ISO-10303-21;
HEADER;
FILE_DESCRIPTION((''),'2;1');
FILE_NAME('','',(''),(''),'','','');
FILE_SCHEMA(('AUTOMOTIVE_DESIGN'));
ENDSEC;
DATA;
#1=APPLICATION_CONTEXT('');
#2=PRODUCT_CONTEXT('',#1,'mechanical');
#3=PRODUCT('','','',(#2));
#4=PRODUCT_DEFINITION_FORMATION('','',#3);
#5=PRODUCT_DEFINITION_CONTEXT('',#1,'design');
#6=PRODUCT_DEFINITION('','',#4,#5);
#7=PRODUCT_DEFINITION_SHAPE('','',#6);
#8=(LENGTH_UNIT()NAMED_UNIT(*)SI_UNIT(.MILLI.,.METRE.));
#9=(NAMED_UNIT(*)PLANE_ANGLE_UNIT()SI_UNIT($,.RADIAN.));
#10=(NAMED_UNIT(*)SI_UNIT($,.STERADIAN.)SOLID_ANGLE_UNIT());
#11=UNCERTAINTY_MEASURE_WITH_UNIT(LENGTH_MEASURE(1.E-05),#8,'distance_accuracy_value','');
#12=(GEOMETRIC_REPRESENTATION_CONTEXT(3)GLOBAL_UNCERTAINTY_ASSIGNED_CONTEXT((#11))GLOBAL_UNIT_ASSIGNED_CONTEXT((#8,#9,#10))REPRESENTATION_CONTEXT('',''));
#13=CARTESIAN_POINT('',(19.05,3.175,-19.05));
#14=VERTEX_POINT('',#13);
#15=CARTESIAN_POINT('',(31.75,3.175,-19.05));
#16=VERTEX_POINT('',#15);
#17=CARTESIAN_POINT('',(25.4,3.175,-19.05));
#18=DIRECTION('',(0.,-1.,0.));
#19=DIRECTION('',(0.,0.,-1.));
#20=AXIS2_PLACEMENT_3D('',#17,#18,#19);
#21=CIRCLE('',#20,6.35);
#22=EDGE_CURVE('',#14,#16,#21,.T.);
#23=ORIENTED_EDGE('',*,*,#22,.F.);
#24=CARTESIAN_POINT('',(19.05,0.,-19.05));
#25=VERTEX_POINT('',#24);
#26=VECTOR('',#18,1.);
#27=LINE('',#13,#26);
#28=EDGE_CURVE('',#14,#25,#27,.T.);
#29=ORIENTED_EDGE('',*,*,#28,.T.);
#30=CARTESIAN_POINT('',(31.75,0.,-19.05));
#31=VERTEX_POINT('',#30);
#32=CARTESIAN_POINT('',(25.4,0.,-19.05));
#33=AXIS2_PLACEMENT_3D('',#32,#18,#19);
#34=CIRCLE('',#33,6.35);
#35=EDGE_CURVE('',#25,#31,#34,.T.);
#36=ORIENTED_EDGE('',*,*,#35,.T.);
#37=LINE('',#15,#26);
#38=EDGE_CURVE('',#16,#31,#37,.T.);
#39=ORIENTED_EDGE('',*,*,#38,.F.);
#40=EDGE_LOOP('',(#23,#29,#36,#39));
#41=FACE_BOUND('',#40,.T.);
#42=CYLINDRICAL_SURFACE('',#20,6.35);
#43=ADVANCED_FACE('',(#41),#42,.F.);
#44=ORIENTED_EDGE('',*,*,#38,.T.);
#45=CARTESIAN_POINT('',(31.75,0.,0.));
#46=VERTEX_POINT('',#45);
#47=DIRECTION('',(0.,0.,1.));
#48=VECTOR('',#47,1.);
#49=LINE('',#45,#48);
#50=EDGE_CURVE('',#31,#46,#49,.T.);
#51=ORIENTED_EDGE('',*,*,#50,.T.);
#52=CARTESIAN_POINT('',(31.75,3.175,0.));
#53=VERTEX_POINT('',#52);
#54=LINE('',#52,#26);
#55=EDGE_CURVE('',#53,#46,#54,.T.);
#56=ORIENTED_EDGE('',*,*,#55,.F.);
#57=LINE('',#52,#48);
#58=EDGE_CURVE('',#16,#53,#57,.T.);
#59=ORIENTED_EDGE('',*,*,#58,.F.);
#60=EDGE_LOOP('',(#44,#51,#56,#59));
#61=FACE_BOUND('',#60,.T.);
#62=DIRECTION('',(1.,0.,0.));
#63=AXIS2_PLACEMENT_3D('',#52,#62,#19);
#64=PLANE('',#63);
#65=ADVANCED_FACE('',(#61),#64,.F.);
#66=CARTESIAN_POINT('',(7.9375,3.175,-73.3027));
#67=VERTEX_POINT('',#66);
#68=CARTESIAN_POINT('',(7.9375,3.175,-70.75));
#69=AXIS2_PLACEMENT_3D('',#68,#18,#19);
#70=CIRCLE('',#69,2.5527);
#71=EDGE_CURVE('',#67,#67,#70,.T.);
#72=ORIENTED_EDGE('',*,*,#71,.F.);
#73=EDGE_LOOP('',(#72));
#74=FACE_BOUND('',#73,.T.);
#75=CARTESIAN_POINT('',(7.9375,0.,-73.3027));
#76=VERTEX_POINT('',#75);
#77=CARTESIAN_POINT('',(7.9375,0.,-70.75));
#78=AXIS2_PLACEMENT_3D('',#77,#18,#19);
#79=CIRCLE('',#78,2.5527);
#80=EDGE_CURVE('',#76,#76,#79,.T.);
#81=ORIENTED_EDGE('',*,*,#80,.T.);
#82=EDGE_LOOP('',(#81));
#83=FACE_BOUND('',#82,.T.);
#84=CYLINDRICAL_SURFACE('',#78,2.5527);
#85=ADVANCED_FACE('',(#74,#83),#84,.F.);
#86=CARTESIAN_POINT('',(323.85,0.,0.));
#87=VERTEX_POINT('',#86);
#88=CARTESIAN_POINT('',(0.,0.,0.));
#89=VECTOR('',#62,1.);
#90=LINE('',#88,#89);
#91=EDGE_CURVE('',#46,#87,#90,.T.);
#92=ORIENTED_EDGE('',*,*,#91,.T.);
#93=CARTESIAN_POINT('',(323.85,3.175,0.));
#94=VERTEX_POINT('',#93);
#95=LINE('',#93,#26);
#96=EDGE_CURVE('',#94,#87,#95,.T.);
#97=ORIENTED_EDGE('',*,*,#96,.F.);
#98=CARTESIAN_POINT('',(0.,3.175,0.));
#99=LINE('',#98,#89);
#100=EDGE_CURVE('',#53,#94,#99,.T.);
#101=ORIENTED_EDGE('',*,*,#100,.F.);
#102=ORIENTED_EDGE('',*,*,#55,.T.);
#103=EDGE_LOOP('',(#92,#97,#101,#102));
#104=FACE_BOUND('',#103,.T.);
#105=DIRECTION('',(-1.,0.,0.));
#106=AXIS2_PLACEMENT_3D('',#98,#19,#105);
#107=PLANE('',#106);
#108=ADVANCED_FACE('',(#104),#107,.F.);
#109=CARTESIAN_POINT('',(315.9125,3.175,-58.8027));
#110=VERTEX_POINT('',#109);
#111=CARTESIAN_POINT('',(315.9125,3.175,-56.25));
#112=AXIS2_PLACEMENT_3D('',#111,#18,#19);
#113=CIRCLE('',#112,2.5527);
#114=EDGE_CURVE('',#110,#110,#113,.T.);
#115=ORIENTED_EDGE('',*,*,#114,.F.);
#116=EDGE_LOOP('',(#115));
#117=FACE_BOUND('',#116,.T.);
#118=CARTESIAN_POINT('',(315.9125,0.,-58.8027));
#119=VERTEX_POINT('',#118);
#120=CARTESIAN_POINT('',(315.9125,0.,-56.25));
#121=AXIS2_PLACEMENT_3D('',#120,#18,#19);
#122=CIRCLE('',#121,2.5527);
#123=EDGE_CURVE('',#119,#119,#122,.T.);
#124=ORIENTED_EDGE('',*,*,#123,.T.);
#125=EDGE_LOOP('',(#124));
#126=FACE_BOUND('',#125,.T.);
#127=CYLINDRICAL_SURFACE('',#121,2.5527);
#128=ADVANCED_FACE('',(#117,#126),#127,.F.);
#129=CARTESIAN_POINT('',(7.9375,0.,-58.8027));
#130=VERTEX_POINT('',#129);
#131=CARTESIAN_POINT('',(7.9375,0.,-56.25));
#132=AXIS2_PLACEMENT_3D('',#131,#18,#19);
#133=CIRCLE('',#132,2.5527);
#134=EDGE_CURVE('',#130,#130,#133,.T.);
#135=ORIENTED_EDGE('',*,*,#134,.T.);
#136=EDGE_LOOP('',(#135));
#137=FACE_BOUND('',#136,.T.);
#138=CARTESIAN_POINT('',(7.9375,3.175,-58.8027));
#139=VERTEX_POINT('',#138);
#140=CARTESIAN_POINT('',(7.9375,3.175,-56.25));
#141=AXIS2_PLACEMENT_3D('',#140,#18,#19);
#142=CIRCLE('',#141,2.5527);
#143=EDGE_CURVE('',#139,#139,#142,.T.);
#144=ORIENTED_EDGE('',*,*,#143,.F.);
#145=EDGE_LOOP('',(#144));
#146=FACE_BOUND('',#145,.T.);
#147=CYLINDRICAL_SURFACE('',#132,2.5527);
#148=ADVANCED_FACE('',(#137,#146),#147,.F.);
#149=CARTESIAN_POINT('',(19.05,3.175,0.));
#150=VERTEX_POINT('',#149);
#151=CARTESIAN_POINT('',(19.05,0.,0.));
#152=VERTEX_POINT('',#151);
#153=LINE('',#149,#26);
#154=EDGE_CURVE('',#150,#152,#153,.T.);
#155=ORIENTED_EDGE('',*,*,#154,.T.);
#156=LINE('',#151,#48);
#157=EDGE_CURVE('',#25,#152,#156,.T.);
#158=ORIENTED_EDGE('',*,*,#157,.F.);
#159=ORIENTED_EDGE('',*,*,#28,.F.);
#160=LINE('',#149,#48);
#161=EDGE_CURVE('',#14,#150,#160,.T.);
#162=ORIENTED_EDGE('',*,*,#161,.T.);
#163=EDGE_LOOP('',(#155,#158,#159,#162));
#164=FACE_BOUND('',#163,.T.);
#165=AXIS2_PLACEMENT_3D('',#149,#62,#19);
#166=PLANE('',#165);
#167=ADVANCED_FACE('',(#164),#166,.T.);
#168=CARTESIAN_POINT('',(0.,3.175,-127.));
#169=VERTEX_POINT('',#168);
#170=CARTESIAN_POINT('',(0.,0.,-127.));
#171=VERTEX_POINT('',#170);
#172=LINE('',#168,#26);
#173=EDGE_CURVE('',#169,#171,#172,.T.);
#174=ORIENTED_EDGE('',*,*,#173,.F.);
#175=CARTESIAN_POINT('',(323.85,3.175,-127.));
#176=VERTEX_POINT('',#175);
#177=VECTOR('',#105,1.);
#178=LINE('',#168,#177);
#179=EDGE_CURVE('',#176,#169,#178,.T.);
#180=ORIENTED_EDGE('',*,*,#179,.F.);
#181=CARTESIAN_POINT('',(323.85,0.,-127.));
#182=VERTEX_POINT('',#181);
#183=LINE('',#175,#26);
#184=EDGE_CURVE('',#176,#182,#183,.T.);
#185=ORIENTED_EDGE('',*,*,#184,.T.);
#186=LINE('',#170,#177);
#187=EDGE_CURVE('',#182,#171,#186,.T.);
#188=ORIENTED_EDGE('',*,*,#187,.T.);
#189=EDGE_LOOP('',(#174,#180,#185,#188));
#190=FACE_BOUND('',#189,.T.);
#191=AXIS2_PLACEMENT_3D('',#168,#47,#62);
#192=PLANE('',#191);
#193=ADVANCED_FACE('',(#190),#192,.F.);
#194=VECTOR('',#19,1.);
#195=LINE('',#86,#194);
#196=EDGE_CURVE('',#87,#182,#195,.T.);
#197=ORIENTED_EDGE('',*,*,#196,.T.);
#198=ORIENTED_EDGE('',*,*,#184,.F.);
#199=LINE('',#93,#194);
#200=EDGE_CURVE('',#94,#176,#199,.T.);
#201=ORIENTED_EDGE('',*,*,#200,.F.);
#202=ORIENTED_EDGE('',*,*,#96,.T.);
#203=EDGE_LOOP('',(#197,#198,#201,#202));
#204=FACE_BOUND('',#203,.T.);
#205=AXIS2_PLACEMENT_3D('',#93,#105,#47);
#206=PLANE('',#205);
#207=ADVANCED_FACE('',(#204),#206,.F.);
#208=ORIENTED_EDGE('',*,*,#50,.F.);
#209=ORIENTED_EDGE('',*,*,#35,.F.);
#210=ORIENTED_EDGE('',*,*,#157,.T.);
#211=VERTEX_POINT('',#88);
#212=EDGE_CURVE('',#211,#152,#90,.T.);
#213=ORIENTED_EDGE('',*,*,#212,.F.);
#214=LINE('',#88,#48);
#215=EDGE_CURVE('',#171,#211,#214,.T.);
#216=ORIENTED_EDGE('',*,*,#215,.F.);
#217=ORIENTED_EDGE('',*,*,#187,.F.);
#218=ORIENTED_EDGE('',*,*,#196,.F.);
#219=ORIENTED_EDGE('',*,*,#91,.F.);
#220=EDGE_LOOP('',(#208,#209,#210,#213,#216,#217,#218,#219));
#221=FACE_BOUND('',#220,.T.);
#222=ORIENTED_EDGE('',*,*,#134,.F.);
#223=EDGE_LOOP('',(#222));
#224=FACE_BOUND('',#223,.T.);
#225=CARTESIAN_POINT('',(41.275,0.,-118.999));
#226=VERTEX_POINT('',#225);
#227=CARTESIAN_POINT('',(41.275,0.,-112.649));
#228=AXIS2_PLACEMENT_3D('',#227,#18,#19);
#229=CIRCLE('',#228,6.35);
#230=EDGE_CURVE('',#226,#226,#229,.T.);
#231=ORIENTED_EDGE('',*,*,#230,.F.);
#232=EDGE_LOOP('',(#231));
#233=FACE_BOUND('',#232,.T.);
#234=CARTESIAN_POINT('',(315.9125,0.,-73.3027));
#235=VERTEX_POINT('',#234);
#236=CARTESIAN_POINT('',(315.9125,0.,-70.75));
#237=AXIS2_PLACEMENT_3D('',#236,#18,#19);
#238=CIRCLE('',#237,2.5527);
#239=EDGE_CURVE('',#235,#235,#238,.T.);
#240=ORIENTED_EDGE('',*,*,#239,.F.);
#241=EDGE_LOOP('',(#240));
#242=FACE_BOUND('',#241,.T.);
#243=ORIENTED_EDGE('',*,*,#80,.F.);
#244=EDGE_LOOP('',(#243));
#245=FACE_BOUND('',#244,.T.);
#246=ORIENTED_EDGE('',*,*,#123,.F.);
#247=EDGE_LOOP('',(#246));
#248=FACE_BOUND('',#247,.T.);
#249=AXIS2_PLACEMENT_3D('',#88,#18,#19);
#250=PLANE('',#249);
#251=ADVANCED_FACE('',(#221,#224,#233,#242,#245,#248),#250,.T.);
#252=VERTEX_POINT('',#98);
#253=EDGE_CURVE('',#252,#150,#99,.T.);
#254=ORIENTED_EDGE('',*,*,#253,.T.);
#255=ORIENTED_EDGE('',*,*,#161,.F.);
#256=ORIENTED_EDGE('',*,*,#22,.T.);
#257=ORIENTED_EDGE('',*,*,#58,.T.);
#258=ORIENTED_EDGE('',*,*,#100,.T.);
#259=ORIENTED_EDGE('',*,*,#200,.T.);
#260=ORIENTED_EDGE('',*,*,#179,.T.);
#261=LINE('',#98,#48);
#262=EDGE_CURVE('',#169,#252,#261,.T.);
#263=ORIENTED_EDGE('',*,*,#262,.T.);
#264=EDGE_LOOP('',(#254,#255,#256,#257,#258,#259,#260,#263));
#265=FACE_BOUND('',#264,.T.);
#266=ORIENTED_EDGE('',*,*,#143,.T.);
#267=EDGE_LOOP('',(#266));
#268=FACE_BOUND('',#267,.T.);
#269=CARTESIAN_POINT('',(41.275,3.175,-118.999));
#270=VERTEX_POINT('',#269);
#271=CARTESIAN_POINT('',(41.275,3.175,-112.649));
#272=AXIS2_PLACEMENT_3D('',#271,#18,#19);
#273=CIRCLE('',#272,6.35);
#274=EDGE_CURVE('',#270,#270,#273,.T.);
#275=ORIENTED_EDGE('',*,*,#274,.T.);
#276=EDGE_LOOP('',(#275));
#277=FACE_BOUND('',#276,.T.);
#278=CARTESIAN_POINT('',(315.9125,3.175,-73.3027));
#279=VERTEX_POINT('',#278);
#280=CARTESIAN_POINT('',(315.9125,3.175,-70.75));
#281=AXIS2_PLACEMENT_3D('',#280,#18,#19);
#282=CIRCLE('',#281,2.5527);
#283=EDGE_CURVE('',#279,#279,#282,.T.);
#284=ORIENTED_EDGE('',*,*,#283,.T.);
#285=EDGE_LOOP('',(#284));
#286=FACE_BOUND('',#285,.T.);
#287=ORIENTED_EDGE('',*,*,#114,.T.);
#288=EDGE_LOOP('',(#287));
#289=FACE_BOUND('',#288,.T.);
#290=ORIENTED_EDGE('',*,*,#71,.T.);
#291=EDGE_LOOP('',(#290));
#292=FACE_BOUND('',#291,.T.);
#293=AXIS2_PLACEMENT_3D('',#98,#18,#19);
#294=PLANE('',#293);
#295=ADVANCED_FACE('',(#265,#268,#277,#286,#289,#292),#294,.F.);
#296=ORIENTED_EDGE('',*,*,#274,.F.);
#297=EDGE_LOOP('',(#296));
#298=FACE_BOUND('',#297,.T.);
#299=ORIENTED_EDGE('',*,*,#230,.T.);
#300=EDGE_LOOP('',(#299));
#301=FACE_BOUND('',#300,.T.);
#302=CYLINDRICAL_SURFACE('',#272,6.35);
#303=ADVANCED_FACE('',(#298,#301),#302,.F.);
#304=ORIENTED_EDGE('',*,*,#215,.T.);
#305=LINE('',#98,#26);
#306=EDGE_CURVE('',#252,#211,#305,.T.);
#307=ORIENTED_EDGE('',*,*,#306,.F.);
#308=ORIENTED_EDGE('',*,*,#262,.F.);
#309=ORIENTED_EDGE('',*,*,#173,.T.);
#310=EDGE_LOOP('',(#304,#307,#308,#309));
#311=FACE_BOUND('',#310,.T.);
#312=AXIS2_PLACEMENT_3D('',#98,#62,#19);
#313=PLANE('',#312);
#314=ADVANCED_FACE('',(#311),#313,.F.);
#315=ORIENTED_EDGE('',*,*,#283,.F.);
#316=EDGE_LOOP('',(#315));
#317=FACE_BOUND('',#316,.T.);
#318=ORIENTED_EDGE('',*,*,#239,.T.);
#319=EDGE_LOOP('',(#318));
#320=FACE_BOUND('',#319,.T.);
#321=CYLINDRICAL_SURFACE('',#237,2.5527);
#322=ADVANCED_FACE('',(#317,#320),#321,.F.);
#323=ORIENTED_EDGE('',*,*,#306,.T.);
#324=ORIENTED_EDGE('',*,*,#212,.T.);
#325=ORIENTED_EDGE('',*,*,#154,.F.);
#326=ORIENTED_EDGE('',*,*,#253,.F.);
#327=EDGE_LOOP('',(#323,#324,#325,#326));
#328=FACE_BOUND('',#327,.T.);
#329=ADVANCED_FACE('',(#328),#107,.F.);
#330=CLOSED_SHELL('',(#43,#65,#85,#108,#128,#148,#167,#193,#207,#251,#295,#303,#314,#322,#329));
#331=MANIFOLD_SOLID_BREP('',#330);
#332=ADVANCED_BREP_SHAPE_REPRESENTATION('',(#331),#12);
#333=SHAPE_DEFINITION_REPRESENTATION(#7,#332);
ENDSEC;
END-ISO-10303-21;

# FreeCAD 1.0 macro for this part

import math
import FreeCAD as App
import Part
import Sketcher
Q = App.Units.Quantity


def add_polygon(sketch, points):
    """Adds a closed chain of lines whose ends are joined by coincident constraints."""
    first, n = sketch.GeometryCount, len(points)
    for a, b in zip(points, points[1:] + points[:1]):
        sketch.addGeometry(Part.LineSegment(App.Vector(*a, 0), App.Vector(*b, 0)), False)
    for i in range(n):
        sketch.addConstraint(Sketcher.Constraint("Coincident", first + i, 2, first + (i + 1) % n, 1))

doc = App.newDocument("Part")
params = doc.addObject("Spreadsheet::Sheet", "Params")
for row, (alias, value) in enumerate([
    ("sketch1_height", "5 in"),
    ("sketch1_width", "12.75 in"),
    ("pad1_length", "0.125 in"),
    ("sketch2_diameter", "0.5 in"),
    ("sketch2_height", "0.75 in"),
    ("sketch3_diameter", "0.201 in"),
    ("hole_diameter", "0.201 in"),
    ("hole_depth", "0.5 in"),
], start=1):
    params.set(f"A{row}", alias)
    params.set(f"B{row}", "=" + value)
    params.setAlias(f"B{row}", alias)

body = doc.addObject("PartDesign::Body", "Body")

# Sketch on XZ plane
sketch1 = body.newObject("Sketcher::SketchObject", "Sketch")
sketch1.AttachmentSupport = (doc.getObject("XZ_Plane"), [""])
sketch1.MapMode = "FlatFace"
add_polygon(sketch1, [(0, -127), (0, 0), (323.85, 0), (323.85, -127)])  # lines 0-3
sketch1.addConstraint([
    Sketcher.Constraint("Vertical", 0),
    Sketcher.Constraint("Horizontal", 1),
    Sketcher.Constraint("Vertical", 2),
    Sketcher.Constraint("Horizontal", 3),
    Sketcher.Constraint("Coincident", 0, 2, -1, 1),
    Sketcher.Constraint("DistanceY", 0, 1, 0, 2, Q("5 in")),
    Sketcher.Constraint("DistanceX", 1, 1, 1, 2, Q("12.75 in")),
])
sketch1.setExpression("Constraints[9]", "Params.sketch1_height")
sketch1.setExpression("Constraints[10]", "Params.sketch1_width")
pad1 = body.newObject("PartDesign::Pad", "Pad")
pad1.Profile = sketch1
pad1.setExpression("Length", "Params.pad1_length")
pad1.Reversed = True

# Sketch on XZ plane
sketch2 = body.newObject("Sketcher::SketchObject", "Sketch001")
sketch2.AttachmentSupport = (doc.getObject("XZ_Plane"), [""])
sketch2.MapMode = "FlatFace"
sketch2.addGeometry([
    Part.Circle(App.Vector(41.275, -112.649, 0), App.Vector(0, 0, 1), 6.35),  # 0
    Part.ArcOfCircle(Part.Circle(App.Vector(25.4, -19.05, 0), App.Vector(0, 0, 1), 6.35), math.radians(180), math.radians(360)),  # 1
    Part.LineSegment(App.Vector(31.75, -19.05, 0), App.Vector(31.75, 0, 0)),  # 2
    Part.LineSegment(App.Vector(31.75, 0, 0), App.Vector(19.05, 0, 0)),  # 3
    Part.LineSegment(App.Vector(19.05, 0, 0), App.Vector(19.05, -19.05, 0)),  # 4
], False)
sketch2.addConstraint([
    Sketcher.Constraint("Tangent", 1, 2, 2, 1),
    Sketcher.Constraint("Coincident", 2, 2, 3, 1),
    Sketcher.Constraint("Coincident", 3, 2, 4, 1),
    Sketcher.Constraint("Tangent", 4, 2, 1, 1),
    Sketcher.Constraint("Vertical", 2),
    Sketcher.Constraint("Horizontal", 3),
    Sketcher.Constraint("Vertical", 4),
    Sketcher.Constraint("Equal", 0, 1),
    Sketcher.Constraint("PointOnObject", 2, 2, -1),
    Sketcher.Constraint("Diameter", 0, Q("0.5 in")),
    Sketcher.Constraint("DistanceX", -1, 1, 1, 3, Q("1 in")),
    Sketcher.Constraint("DistanceY", 2, 1, 2, 2, Q("0.75 in")),
    Sketcher.Constraint("DistanceX", -1, 1, 0, 3, Q("1.625 in")),
    Sketcher.Constraint("DistanceY", 0, 3, -1, 1, Q("4.435 in")),
])
sketch2.setExpression("Constraints[9]", "Params.sketch2_diameter")
sketch2.setExpression("Constraints[11]", "Params.sketch2_height")
pocket1 = body.newObject("PartDesign::Pocket", "Pocket")
pocket1.Profile = sketch2
pocket1.Type = "ThroughAll"

# Sketch on XZ plane
sketch3 = body.newObject("Sketcher::SketchObject", "Sketch002")
sketch3.AttachmentSupport = (doc.getObject("XZ_Plane"), [""])
sketch3.MapMode = "FlatFace"
sketch3.addGeometry([
    Part.Circle(App.Vector(315.9125, -70.75, 0), App.Vector(0, 0, 1), 2.5527),
    Part.Circle(App.Vector(315.9125, -56.25, 0), App.Vector(0, 0, 1), 2.5527),
    Part.Circle(App.Vector(7.9375, -70.75, 0), App.Vector(0, 0, 1), 2.5527),
    Part.Circle(App.Vector(7.9375, -56.25, 0), App.Vector(0, 0, 1), 2.5527),
], False)
sketch3.addConstraint([
    Sketcher.Constraint("Equal", 0, 1),
    Sketcher.Constraint("Equal", 1, 2),
    Sketcher.Constraint("Equal", 2, 3),
    Sketcher.Constraint("Horizontal", 0, 3, 2, 3),
    Sketcher.Constraint("Horizontal", 1, 3, 3, 3),
    Sketcher.Constraint("Vertical", 0, 3, 1, 3),
    Sketcher.Constraint("Vertical", 2, 3, 3, 3),
    Sketcher.Constraint("Diameter", 0, Q("0.201 in")),
    Sketcher.Constraint("DistanceX", -1, 1, 0, 3, Q("12.4375 in")),
    Sketcher.Constraint("DistanceX", -1, 1, 2, 3, Q("0.3125 in")),
    Sketcher.Constraint("DistanceY", 0, 3, -1, 1, Q("70.75 mm")),
    Sketcher.Constraint("DistanceY", 1, 3, -1, 1, Q("56.25 mm")),
])
sketch3.setExpression("Constraints[7]", "Params.sketch3_diameter")
doc.recompute()
hole = body.newObject("PartDesign::Hole", "Hole")
hole.Profile = sketch3
hole.ThreadType = "None"
hole.setExpression("Diameter", "Params.hole_diameter")
hole.DepthType = "Dimension"
hole.setExpression("Depth", "Params.hole_depth")
hole.DrillPoint = "Angled"
hole.DrillPointAngle = 118

doc.recompute()
